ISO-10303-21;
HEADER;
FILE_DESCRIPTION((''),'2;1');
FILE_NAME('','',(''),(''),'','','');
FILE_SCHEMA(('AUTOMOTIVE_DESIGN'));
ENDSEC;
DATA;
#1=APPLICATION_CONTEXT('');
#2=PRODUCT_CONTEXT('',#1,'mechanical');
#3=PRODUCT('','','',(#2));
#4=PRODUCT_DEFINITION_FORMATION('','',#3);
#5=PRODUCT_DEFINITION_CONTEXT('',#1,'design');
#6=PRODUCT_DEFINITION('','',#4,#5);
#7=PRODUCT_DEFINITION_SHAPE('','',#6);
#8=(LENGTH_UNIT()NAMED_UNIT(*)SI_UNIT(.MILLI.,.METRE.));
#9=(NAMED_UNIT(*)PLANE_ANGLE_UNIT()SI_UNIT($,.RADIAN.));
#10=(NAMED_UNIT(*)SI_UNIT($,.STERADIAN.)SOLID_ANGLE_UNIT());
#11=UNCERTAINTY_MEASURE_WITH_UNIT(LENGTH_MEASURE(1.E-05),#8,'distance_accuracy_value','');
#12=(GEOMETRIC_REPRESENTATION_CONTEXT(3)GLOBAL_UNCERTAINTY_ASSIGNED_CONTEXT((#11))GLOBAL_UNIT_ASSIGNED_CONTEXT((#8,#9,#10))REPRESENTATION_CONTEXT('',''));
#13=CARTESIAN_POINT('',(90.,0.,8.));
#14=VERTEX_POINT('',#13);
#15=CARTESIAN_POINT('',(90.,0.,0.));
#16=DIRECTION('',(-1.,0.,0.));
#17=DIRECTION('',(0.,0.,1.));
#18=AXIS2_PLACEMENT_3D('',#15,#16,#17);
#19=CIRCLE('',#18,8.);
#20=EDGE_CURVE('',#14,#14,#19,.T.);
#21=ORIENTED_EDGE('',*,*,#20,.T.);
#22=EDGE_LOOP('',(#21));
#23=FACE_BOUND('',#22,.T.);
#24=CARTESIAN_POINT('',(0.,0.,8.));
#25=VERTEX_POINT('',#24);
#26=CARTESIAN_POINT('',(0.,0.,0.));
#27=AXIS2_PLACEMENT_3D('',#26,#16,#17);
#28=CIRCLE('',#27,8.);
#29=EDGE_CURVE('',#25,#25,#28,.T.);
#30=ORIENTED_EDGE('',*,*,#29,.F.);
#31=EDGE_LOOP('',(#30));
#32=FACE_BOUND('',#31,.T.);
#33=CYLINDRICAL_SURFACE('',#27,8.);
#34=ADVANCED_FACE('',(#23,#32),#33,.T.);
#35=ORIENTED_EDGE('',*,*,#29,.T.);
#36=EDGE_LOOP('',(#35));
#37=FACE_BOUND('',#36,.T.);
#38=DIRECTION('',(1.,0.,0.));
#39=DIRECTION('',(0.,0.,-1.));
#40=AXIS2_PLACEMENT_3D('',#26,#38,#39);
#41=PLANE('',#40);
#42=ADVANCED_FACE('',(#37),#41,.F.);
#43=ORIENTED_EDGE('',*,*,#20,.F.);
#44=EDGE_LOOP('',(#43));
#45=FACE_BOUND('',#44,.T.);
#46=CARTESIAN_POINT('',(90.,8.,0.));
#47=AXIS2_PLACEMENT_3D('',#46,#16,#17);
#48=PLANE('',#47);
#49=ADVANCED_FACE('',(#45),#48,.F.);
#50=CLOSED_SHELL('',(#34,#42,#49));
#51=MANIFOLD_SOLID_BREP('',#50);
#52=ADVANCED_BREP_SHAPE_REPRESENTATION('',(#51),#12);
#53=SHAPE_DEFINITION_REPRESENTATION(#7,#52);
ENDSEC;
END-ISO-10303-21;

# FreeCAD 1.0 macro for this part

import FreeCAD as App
import Part
import Sketcher
from FreeCAD import Vector
Q = App.Units.Quantity

doc = App.newDocument("Part")
body = doc.addObject("PartDesign::Body", "Body")

sketch1 = body.newObject("Sketcher::SketchObject", "Sketch")
sketch1.AttachmentSupport = (doc.getObject("XY_Plane"), [""])
sketch1.MapMode = "FlatFace"
sketch1.addGeometry([
    Part.LineSegment(Vector(0, 8, 0), Vector(0, 0, 0)),
    Part.LineSegment(Vector(0, 0, 0), Vector(90, 0, 0)),
    Part.LineSegment(Vector(90, 0, 0), Vector(90, 8, 0)),
    Part.LineSegment(Vector(90, 8, 0), Vector(0, 8, 0)),
], False)
sketch1.addConstraint([
    Sketcher.Constraint("Coincident", 0, 2, 1, 1),
    Sketcher.Constraint("Coincident", 1, 2, 2, 1),
    Sketcher.Constraint("Coincident", 2, 2, 3, 1),
    Sketcher.Constraint("Coincident", 3, 2, 0, 1),
    Sketcher.Constraint("Vertical", 0),
    Sketcher.Constraint("Horizontal", 1),
    Sketcher.Constraint("Vertical", 2),
    Sketcher.Constraint("Horizontal", 3),
    Sketcher.Constraint("Coincident", 0, 2, -1, 1),
    Sketcher.Constraint("DistanceX", 1, 1, 1, 2, Q("90 mm")),
    Sketcher.Constraint("DistanceY", 0, 2, 0, 1, Q("8 mm")),
])
revolution = body.newObject("PartDesign::Revolution", "Revolution")
revolution.Profile = sketch1
revolution.ReferenceAxis = (sketch1, ["H_Axis"])
revolution.Angle = 360

doc.recompute()
